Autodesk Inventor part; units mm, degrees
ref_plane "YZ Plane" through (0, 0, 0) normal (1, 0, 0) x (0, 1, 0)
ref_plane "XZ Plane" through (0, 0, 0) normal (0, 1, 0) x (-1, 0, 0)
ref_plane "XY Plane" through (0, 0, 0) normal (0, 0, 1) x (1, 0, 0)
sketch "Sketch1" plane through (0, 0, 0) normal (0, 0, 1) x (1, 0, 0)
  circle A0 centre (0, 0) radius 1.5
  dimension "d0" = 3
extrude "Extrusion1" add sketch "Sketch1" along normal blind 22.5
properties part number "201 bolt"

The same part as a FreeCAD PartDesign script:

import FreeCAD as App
import Part
import Sketcher

V = App.Vector

doc = App.newDocument("Part")
params = doc.addObject("Spreadsheet::Sheet", "Params")
for row, (alias, value) in enumerate([
    ("sketch1_diameter", "3 mm"),
    ("pad1_length", "22.5 mm"),
], start=1):
    params.set(f"A{row}", alias)
    params.set(f"B{row}", "=" + value)
    params.setAlias(f"B{row}", alias)

body = doc.addObject("PartDesign::Body", "Body")

sketch1 = doc.addObject("Sketcher::SketchObject", "Sketch")
body.addObject(sketch1)
sketch1.AttachmentSupport = (doc.XY_Plane, [""])
sketch1.MapMode = "FlatFace"
sketch1.addGeometry(Part.Circle(V(0, 0, 0), V(0, 0, 1), 1.5), False)
sketch1.addConstraint(Sketcher.Constraint("Coincident", 0, 3, -1, 1))
sketch1.addConstraint(Sketcher.Constraint("Diameter", 0, 3.0))
sketch1.setExpression("Constraints[1]", "Params.sketch1_diameter")
pad1 = doc.addObject("PartDesign::Pad", "Pad")
body.addObject(pad1)
pad1.Profile = sketch1
pad1.setExpression("Length", "Params.pad1_length")

doc.recompute()
